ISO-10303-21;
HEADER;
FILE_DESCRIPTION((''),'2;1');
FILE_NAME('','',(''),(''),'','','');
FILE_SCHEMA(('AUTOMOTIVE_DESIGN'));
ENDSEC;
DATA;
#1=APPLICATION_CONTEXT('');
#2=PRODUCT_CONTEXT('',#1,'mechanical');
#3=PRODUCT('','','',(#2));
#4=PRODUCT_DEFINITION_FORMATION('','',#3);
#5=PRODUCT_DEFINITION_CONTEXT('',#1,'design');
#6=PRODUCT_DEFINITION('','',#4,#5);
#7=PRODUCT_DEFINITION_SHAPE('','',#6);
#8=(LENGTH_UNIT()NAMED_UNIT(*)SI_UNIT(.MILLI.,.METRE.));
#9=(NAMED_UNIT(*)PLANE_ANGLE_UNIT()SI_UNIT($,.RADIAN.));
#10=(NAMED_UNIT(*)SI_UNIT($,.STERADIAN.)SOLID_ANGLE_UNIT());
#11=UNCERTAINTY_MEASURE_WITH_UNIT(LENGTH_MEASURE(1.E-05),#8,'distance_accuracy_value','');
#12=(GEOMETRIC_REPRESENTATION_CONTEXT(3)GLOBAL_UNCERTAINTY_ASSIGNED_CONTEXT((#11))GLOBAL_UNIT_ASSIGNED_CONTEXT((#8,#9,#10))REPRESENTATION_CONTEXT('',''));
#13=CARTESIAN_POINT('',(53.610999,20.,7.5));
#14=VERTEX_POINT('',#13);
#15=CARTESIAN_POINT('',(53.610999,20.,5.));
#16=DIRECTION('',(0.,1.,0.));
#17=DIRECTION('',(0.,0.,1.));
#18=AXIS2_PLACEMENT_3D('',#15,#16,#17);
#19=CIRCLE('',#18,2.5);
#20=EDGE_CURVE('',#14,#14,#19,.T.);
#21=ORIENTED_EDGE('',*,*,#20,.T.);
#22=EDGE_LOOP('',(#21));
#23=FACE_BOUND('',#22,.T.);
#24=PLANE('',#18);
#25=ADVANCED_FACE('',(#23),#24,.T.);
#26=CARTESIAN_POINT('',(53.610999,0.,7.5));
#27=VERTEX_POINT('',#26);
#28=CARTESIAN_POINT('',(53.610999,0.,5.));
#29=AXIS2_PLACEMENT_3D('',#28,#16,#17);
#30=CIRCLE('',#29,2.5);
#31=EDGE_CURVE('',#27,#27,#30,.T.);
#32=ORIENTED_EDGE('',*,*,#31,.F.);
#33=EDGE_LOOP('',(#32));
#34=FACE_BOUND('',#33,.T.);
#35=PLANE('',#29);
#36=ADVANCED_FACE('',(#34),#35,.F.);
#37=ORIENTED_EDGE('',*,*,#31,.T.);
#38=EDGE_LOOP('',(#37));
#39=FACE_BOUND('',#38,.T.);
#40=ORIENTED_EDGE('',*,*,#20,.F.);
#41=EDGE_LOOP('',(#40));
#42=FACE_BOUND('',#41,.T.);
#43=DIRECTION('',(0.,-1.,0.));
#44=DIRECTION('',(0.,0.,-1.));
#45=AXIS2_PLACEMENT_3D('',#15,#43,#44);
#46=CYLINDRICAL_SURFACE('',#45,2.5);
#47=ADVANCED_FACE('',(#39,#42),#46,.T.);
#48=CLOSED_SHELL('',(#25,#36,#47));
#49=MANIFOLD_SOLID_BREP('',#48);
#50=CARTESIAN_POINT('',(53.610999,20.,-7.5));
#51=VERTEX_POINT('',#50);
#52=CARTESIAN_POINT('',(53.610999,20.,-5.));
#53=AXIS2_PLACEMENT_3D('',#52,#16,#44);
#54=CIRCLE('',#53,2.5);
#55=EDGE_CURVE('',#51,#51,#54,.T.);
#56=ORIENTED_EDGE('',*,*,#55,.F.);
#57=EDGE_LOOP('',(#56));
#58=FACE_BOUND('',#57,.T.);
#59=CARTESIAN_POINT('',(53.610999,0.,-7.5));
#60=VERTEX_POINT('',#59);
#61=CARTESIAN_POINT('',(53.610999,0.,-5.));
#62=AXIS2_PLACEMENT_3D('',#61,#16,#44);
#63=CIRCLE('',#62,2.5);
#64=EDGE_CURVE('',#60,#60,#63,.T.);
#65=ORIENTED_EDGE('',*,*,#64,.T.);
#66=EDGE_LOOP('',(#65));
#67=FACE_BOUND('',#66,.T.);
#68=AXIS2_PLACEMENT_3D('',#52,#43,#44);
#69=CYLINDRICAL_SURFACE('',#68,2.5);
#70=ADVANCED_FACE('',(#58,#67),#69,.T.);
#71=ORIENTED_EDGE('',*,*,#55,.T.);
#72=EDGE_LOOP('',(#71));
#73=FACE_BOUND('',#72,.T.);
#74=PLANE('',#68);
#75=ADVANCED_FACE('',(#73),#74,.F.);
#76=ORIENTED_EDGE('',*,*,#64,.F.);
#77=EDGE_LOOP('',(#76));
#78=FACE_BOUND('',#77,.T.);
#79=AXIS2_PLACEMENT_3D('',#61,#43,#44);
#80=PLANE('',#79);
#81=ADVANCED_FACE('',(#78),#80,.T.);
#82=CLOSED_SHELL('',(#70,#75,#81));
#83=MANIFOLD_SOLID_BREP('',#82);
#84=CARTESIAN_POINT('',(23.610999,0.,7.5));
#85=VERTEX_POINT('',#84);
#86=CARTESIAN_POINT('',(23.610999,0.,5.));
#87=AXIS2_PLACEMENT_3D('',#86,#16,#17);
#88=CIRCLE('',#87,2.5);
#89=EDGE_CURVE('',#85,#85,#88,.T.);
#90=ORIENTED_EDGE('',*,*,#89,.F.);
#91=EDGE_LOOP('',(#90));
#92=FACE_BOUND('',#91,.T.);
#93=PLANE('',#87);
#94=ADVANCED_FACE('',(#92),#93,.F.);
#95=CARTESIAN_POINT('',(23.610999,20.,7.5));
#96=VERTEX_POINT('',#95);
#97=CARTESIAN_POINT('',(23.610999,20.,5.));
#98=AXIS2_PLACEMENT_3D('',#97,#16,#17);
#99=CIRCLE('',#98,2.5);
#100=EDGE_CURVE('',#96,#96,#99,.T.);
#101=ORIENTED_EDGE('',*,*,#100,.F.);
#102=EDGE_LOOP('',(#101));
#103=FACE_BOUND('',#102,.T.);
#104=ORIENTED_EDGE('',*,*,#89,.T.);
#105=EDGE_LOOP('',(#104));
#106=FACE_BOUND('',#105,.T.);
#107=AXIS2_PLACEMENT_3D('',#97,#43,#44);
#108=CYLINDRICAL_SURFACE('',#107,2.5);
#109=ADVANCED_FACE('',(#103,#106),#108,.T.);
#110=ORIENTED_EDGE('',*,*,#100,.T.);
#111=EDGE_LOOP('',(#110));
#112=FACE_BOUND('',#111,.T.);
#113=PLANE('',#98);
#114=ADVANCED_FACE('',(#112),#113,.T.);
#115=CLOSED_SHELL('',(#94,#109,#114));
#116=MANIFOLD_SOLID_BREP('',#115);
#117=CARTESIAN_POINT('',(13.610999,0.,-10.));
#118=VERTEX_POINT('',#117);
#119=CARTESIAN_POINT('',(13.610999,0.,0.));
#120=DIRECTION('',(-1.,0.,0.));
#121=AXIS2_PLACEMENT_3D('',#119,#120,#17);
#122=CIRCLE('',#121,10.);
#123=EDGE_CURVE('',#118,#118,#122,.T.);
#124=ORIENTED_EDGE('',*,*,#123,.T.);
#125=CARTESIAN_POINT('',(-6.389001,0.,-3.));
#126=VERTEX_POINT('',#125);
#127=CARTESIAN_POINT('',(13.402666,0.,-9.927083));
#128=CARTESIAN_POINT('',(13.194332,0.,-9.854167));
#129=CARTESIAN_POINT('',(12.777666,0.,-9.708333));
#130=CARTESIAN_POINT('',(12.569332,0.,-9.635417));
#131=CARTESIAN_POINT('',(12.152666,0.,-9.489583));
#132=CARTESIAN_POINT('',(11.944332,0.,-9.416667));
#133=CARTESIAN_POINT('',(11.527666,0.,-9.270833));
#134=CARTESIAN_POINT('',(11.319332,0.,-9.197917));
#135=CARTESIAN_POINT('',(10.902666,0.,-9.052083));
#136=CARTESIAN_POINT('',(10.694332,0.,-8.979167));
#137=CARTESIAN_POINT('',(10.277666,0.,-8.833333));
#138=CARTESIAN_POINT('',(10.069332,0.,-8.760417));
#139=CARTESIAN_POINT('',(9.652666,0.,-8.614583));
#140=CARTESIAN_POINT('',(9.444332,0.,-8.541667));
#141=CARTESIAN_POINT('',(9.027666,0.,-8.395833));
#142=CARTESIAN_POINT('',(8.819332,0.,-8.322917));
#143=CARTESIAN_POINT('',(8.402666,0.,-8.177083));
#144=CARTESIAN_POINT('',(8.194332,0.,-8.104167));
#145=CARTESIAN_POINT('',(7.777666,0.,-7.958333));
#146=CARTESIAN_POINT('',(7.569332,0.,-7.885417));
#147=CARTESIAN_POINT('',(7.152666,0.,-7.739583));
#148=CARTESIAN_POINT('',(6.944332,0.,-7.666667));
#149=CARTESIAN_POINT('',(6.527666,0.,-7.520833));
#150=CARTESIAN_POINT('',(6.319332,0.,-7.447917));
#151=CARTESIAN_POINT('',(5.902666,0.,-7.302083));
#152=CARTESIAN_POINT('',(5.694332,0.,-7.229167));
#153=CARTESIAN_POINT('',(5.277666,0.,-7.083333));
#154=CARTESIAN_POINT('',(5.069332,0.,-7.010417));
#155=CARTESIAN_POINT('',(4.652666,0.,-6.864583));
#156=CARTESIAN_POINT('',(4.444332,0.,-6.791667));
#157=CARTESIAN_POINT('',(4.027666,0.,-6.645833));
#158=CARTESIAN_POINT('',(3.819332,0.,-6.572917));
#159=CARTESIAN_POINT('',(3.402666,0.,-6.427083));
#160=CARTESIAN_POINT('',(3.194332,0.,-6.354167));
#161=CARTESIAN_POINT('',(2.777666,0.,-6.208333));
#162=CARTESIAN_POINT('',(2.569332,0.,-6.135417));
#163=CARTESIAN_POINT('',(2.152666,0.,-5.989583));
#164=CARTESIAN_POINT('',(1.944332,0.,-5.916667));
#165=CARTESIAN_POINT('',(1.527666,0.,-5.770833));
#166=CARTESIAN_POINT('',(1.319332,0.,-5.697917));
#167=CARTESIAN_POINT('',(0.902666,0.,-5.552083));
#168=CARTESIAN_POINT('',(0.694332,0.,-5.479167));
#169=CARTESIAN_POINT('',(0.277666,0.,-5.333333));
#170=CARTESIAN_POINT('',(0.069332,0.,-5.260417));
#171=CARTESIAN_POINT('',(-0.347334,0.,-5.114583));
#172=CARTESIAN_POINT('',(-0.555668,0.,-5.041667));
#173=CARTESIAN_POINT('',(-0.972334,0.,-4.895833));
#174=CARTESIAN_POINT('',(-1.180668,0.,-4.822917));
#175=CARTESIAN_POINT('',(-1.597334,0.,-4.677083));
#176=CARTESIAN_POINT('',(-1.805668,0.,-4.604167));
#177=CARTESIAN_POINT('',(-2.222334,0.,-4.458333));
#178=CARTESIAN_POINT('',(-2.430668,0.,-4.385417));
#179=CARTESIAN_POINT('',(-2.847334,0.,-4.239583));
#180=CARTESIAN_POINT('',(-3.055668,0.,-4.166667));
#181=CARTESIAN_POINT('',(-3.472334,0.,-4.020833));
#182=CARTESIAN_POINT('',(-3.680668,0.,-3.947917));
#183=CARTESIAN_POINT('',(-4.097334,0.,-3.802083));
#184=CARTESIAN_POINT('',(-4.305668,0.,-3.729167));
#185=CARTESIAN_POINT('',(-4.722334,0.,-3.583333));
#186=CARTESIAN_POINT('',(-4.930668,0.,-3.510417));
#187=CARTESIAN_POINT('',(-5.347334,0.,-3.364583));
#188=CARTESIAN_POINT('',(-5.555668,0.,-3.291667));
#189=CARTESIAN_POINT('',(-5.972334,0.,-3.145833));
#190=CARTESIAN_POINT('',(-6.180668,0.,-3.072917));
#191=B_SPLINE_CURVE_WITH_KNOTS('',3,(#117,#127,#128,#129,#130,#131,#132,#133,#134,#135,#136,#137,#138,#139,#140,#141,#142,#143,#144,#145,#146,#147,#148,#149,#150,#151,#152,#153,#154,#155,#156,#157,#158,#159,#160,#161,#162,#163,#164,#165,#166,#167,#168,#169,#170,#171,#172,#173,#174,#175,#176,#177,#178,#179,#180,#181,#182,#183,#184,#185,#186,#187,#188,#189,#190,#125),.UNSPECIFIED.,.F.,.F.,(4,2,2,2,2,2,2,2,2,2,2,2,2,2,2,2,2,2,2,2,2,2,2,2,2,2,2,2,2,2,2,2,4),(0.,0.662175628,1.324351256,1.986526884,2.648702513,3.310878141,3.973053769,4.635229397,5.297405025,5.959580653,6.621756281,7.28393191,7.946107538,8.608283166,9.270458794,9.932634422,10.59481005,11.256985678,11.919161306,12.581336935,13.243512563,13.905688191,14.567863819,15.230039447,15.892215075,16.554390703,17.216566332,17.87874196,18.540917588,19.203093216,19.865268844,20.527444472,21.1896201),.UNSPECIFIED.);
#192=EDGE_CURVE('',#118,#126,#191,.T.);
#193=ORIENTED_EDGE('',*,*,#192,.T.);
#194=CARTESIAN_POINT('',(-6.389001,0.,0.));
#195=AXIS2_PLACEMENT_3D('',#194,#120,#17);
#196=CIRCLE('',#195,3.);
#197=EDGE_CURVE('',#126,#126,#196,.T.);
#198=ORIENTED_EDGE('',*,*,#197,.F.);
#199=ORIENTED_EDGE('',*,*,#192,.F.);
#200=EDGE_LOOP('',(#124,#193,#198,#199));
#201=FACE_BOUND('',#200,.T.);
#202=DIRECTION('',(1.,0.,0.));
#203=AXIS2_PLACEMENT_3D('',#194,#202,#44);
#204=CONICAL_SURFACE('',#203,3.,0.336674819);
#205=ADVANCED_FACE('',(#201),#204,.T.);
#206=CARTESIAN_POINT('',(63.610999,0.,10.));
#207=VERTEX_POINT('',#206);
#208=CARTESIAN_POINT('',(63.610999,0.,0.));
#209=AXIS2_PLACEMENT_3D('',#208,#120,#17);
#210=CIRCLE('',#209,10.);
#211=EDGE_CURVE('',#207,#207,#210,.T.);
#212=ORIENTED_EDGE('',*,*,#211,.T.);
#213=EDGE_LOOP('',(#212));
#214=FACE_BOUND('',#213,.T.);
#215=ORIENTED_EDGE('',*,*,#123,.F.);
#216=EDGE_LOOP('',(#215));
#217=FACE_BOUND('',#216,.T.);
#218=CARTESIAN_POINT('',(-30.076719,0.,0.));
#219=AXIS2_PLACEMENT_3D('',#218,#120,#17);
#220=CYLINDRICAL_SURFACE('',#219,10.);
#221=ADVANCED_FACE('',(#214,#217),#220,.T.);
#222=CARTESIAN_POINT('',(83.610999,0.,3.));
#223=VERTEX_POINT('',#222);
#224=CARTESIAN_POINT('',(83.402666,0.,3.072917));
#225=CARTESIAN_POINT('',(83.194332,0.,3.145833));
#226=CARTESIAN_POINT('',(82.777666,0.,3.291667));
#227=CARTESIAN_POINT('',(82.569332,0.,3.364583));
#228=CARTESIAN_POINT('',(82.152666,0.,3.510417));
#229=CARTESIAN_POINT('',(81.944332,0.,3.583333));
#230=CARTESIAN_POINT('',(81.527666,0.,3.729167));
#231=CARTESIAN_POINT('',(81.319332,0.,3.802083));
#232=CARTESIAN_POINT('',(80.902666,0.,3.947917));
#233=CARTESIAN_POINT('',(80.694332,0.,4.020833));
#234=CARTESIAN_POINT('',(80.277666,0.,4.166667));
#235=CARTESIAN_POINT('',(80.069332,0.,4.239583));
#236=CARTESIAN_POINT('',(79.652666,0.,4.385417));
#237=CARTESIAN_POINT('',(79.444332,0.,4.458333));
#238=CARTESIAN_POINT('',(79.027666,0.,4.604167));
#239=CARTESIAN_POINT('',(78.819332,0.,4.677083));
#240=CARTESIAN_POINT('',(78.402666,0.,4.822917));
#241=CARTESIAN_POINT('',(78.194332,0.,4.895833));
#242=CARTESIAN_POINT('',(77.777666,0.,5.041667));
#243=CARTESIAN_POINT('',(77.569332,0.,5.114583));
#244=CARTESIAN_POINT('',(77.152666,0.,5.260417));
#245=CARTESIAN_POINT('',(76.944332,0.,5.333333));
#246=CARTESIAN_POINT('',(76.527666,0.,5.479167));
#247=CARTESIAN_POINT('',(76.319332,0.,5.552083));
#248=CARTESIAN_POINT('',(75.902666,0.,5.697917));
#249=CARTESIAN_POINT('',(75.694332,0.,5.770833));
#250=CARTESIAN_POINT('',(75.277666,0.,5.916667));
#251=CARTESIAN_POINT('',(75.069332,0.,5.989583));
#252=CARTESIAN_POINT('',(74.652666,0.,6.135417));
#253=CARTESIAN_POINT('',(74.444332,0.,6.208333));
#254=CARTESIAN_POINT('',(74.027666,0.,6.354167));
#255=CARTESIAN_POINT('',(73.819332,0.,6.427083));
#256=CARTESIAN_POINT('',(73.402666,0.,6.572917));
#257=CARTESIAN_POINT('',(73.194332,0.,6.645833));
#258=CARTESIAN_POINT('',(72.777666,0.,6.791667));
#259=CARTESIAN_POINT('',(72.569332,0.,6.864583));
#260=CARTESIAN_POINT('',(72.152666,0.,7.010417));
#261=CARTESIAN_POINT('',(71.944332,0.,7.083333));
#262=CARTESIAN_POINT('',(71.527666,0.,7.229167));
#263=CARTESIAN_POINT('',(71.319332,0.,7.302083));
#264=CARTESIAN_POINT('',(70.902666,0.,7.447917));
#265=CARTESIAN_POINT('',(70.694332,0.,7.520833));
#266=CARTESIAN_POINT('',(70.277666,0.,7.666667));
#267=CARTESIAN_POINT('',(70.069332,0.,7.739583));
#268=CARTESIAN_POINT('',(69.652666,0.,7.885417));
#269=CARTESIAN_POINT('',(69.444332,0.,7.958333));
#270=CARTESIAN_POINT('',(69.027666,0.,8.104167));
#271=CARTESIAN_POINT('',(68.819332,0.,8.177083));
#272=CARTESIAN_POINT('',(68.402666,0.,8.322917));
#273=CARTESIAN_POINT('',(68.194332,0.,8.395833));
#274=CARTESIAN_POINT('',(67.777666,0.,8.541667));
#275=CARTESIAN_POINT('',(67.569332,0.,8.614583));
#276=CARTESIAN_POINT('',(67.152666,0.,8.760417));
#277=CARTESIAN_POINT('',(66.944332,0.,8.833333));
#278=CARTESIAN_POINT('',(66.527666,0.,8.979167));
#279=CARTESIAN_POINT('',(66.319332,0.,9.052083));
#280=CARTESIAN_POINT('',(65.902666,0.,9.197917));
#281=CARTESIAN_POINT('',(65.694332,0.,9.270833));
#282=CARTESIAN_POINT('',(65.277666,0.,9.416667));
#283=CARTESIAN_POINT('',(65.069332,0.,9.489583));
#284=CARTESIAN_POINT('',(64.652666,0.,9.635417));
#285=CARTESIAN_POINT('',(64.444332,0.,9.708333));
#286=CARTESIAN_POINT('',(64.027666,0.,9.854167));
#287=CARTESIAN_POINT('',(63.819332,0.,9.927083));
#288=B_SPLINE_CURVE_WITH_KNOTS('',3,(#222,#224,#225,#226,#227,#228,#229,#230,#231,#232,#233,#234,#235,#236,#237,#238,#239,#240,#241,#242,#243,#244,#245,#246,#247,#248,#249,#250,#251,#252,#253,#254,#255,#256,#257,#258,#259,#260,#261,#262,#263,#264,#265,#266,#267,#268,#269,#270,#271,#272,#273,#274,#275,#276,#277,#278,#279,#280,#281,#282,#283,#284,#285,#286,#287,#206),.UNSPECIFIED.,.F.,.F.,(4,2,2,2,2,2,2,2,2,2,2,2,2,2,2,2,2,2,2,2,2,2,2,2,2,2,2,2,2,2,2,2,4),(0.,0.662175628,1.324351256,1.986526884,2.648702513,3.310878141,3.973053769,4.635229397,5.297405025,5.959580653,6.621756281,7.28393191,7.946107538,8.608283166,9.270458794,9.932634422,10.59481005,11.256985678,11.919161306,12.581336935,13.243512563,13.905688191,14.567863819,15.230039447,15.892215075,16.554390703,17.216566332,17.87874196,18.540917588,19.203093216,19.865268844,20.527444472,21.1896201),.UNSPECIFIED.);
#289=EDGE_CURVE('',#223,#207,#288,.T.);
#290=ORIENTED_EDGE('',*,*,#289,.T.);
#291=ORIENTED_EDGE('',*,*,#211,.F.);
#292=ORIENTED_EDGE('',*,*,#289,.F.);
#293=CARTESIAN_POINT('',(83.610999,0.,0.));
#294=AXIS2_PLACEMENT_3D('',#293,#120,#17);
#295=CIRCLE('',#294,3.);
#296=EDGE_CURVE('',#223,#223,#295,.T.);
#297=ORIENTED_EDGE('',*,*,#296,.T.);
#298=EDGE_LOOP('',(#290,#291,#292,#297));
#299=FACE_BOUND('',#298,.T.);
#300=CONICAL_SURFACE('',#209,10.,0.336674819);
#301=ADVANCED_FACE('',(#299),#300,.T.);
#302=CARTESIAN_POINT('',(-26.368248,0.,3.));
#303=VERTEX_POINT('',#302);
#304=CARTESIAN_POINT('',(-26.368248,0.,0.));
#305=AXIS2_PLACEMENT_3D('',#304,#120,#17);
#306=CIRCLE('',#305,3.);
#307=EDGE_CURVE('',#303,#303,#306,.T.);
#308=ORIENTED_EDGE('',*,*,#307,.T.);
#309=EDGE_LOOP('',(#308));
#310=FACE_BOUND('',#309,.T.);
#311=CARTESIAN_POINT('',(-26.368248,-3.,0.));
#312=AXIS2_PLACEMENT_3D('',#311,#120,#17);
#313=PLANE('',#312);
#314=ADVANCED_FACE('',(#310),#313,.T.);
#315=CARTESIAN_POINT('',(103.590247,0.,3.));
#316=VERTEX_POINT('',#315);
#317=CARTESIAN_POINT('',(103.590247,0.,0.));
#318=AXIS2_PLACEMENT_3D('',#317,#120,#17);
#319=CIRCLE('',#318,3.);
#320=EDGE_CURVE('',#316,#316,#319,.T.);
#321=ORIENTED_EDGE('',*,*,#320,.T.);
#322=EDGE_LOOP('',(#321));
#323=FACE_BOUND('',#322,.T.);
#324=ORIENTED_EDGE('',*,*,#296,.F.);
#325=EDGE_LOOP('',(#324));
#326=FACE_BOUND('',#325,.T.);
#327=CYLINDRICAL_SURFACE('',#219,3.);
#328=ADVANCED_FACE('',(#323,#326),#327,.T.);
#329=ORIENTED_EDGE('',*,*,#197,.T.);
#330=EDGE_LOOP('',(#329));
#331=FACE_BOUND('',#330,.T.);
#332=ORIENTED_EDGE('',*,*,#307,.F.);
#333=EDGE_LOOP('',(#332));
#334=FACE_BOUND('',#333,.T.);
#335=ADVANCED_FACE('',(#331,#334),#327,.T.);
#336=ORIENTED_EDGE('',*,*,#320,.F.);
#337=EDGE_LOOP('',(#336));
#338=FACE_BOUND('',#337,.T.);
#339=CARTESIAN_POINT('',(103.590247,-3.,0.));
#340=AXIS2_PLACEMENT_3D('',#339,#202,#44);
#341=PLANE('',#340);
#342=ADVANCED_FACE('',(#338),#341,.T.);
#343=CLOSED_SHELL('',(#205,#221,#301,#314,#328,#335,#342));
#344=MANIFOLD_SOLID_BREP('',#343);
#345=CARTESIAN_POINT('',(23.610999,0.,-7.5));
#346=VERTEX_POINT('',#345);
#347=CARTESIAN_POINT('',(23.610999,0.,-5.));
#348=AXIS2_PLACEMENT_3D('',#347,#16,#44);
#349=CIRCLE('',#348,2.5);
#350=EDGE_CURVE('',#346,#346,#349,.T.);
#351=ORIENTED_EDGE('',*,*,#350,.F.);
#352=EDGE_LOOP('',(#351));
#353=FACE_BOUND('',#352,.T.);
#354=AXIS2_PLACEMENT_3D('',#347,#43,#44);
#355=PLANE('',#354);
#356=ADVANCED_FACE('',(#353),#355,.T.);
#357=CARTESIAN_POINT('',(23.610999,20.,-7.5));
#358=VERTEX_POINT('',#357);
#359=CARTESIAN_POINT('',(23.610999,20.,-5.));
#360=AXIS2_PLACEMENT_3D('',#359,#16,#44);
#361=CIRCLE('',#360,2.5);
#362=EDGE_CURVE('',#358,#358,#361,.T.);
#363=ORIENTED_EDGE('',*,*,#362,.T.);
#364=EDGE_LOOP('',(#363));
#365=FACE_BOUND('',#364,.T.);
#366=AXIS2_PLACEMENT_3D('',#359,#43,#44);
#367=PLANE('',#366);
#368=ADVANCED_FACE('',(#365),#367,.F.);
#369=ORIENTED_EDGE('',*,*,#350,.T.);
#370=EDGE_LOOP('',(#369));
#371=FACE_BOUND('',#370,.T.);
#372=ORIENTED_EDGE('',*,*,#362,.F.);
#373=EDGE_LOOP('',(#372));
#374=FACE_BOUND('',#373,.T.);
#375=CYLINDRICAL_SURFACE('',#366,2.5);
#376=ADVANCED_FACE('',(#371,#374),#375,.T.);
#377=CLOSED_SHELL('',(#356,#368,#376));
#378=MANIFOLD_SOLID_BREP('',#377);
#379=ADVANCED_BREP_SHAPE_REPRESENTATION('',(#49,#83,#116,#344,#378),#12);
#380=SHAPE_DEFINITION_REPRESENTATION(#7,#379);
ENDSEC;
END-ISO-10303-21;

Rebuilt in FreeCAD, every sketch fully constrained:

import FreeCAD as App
import Part
import Sketcher
from FreeCAD import Vector


def add_polygon(sketch, points):
    """Adds a closed chain of lines whose ends are joined by coincident constraints."""
    first, n = sketch.GeometryCount, len(points)
    for a, b in zip(points, points[1:] + points[:1]):
        sketch.addGeometry(Part.LineSegment(App.Vector(*a, 0), App.Vector(*b, 0)), False)
    for i in range(n):
        sketch.addConstraint(Sketcher.Constraint("Coincident", first + i, 2, first + (i + 1) % n, 1))

doc = App.newDocument("Part")
body = doc.addObject("PartDesign::Body", "Body")

# Sketch on XY plane
sketch1 = body.newObject("Sketcher::SketchObject", "Sketch")
sketch1.AttachmentSupport = (doc.getObject("XY_Plane"), [""])
sketch1.MapMode = "FlatFace"
add_polygon(sketch1, [(-6.389001, -3), (13.610999, -10), (63.610999, -10), (83.610999, -3), (103.590247, -3), (103.590247, 0), (-26.368248, 0), (-26.368248, -3)])  # lines 0-7
sketch1.addConstraint(Sketcher.Constraint("Horizontal", 1))
sketch1.addConstraint(Sketcher.Constraint("Horizontal", 3))
sketch1.addConstraint(Sketcher.Constraint("Vertical", 4))
sketch1.addConstraint(Sketcher.Constraint("Horizontal", 5))
sketch1.addConstraint(Sketcher.Constraint("Vertical", 6))
sketch1.addConstraint(Sketcher.Constraint("Horizontal", 7))
sketch1.addConstraint(Sketcher.Constraint("PointOnObject", 4, 2, -1))
sketch1.addConstraint(Sketcher.Constraint("Horizontal", 3, 2, 6, 2))
sketch1.addConstraint(Sketcher.Constraint("Equal", 3, 7))
sketch1.addConstraint(Sketcher.Constraint("Equal", 0, 2))
sketch1.addConstraint(Sketcher.Constraint("DistanceX", 1, 1, 1, 2, 50.0))
sketch1.addConstraint(Sketcher.Constraint("DistanceY", 4, 1, 4, 2, 3.0))
sketch1.addConstraint(Sketcher.Constraint("DistanceY", 0, 2, -1, 1, 10.0))
sketch1.addConstraint(Sketcher.Constraint("DistanceX", 1, 2, 2, 2, 20.0))
sketch1.addConstraint(Sketcher.Constraint("DistanceX", -1, 1, 0, 2, 13.610999))
sketch1.addConstraint(Sketcher.Constraint("DistanceX", 3, 1, 3, 2, 19.979248))
revolution = body.newObject("PartDesign::Revolution", "Revolution")
revolution.Profile = sketch1
revolution.ReferenceAxis = (sketch1, ["H_Axis"])
revolution.Angle = 360
body2 = doc.addObject("PartDesign::Body", "Body001")

# Sketch on XZ plane
sketch2 = body2.newObject("Sketcher::SketchObject", "Sketch001")
sketch2.AttachmentSupport = (doc.getObject("XZ_Plane001"), [""])
sketch2.MapMode = "FlatFace"
sketch2.addGeometry(Part.Circle(Vector(23.610999, 5, 0), Vector(0, 0, 1), 2.5), False)
sketch2.addConstraint(Sketcher.Constraint("Diameter", 0, 5.0))
sketch2.addConstraint(Sketcher.Constraint("DistanceY", -1, 1, 0, 3, 5.0))
sketch2.addConstraint(Sketcher.Constraint("DistanceX", -1, 1, 0, 3, 23.610999))
pad1 = body2.newObject("PartDesign::Pad", "Pad")
pad1.Profile = sketch2
pad1.Length = 20
pad1.Reversed = True
body3 = doc.addObject("PartDesign::Body", "Body002")

# Sketch on XZ plane
sketch3 = body3.newObject("Sketcher::SketchObject", "Sketch002")
sketch3.AttachmentSupport = (doc.getObject("XZ_Plane002"), [""])
sketch3.MapMode = "FlatFace"
sketch3.addGeometry(Part.Circle(Vector(53.610999, 5, 0), Vector(0, 0, 1), 2.5), False)
sketch3.addConstraint(Sketcher.Constraint("Diameter", 0, 5.0))
sketch3.addConstraint(Sketcher.Constraint("DistanceY", -1, 1, 0, 3, 5.0))
sketch3.addConstraint(Sketcher.Constraint("DistanceX", -1, 1, 0, 3, 53.610999))
pad2 = body3.newObject("PartDesign::Pad", "Pad001")
pad2.Profile = sketch3
pad2.Length = 20
pad2.Reversed = True
body4 = doc.addObject("PartDesign::Body", "Body003")

# Sketch on XZ plane
sketch4 = body4.newObject("Sketcher::SketchObject", "Sketch003")
sketch4.AttachmentSupport = (doc.getObject("XZ_Plane003"), [""])
sketch4.MapMode = "FlatFace"
sketch4.addGeometry(Part.Circle(Vector(53.610999, -5, 0), Vector(0, 0, 1), 2.5), False)
sketch4.addConstraint(Sketcher.Constraint("Diameter", 0, 5.0))
sketch4.addConstraint(Sketcher.Constraint("DistanceY", 0, 3, -1, 1, 5.0))
sketch4.addConstraint(Sketcher.Constraint("DistanceX", -1, 1, 0, 3, 53.610999))
pad3 = body4.newObject("PartDesign::Pad", "Pad002")
pad3.Profile = sketch4
pad3.Length = 20
pad3.Reversed = True
body5 = doc.addObject("PartDesign::Body", "Body004")

# Sketch on XZ plane
sketch5 = body5.newObject("Sketcher::SketchObject", "Sketch004")
sketch5.AttachmentSupport = (doc.getObject("XZ_Plane004"), [""])
sketch5.MapMode = "FlatFace"
sketch5.addGeometry(Part.Circle(Vector(23.610999, -5, 0), Vector(0, 0, 1), 2.5), False)
sketch5.addConstraint(Sketcher.Constraint("Diameter", 0, 5.0))
sketch5.addConstraint(Sketcher.Constraint("DistanceY", 0, 3, -1, 1, 5.0))
sketch5.addConstraint(Sketcher.Constraint("DistanceX", -1, 1, 0, 3, 23.610999))
pad4 = body5.newObject("PartDesign::Pad", "Pad003")
pad4.Profile = sketch5
pad4.Length = 20
pad4.Reversed = True

doc.recompute()
